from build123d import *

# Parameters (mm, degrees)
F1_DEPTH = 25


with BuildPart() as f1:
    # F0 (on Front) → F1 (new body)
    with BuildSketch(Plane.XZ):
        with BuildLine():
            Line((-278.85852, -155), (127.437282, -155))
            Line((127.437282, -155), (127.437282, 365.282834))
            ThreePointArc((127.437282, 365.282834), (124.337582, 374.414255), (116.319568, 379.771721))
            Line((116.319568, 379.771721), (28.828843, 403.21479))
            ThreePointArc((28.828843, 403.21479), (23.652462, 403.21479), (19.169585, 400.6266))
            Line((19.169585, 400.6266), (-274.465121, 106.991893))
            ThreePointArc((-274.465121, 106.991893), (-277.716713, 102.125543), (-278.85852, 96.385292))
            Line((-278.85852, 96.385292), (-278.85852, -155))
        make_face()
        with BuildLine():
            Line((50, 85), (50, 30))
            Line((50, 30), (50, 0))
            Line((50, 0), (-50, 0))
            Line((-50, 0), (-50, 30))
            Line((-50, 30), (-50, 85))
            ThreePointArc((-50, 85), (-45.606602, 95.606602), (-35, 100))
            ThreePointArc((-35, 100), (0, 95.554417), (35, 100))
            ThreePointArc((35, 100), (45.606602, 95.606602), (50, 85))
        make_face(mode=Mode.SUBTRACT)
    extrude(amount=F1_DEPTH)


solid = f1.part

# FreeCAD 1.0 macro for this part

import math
import FreeCAD as App
import Part
import Sketcher

V = App.Vector
Q = App.Units.Quantity

doc = App.newDocument("Part")
body = doc.addObject("PartDesign::Body", "Body")

sketch1 = body.newObject("Sketcher::SketchObject", "Sketch")
sketch1.AttachmentSupport = (doc.getObject("XZ_Plane"), [""])
sketch1.MapMode = "FlatFace"
sketch1.addGeometry(Part.LineSegment(V(-278.85852, -155, 0), V(127.437282, -155, 0)), False)
sketch1.addGeometry(Part.LineSegment(V(127.437282, -155, 0), V(127.437282, 365.282834, 0)), False)
sketch1.addGeometry(Part.ArcOfCircle(Part.Circle(V(112.437281, 365.282833, 0), V(0, 0, 1), 15.000001), math.radians(0.000003), math.radians(74.999997)), False)
sketch1.addGeometry(Part.LineSegment(V(116.319568, 379.771721, 0), V(28.828843, 403.21479, 0)), False)
sketch1.addGeometry(Part.ArcOfCircle(Part.Circle(V(26.240652, 393.555531, 0), V(0, 0, 1), 10), math.radians(75), math.radians(134.999996)), False)
sketch1.addGeometry(Part.LineSegment(V(19.169585, 400.6266, 0), V(-274.465121, 106.991893, 0)), False)
sketch1.addGeometry(Part.ArcOfCircle(Part.Circle(V(-263.858525, 96.385292, 0), V(0, 0, 1), 14.999995), math.radians(134.999989), math.radians(180.000002)), False)
sketch1.addGeometry(Part.LineSegment(V(-278.85852, 96.385292, 0), V(-278.85852, -155, 0)), False)
sketch1.addGeometry(Part.ArcOfCircle(Part.Circle(V(35.000001, 85.000001, 0), V(0, 0, 1), 14.999999), math.radians(-0.000004), math.radians(90.000004)), False)
sketch1.addGeometry(Part.LineSegment(V(50, 85, 0), V(50, 0, 0)), False)
sketch1.addGeometry(Part.LineSegment(V(50, 0, 0), V(-50, 0, 0)), False)
sketch1.addGeometry(Part.LineSegment(V(-50, 0, 0), V(-50, 85, 0)), False)
sketch1.addGeometry(Part.ArcOfCircle(Part.Circle(V(-35.000001, 85.000001, 0), V(0, 0, 1), 14.999999), math.radians(89.999996), math.radians(180.000004)), False)
sketch1.addGeometry(Part.ArcOfCircle(Part.Circle(V(0, 235.554413, 0), V(0, 0, 1), 139.999996), math.radians(-104.477513), math.radians(-75.522487)), False)
sketch1.addConstraint(Sketcher.Constraint("Coincident", 0, 2, 1, 1))
sketch1.addConstraint(Sketcher.Constraint("Tangent", 1, 2, 2, 1))
sketch1.addConstraint(Sketcher.Constraint("Tangent", 2, 2, 3, 1))
sketch1.addConstraint(Sketcher.Constraint("Tangent", 3, 2, 4, 1))
sketch1.addConstraint(Sketcher.Constraint("Tangent", 4, 2, 5, 1))
sketch1.addConstraint(Sketcher.Constraint("Tangent", 5, 2, 6, 1))
sketch1.addConstraint(Sketcher.Constraint("Tangent", 6, 2, 7, 1))
sketch1.addConstraint(Sketcher.Constraint("Coincident", 7, 2, 0, 1))
sketch1.addConstraint(Sketcher.Constraint("Tangent", 8, 1, 9, 1))
sketch1.addConstraint(Sketcher.Constraint("Coincident", 9, 2, 10, 1))
sketch1.addConstraint(Sketcher.Constraint("Coincident", 10, 2, 11, 1))
sketch1.addConstraint(Sketcher.Constraint("Tangent", 11, 2, 12, 2))
sketch1.addConstraint(Sketcher.Constraint("Coincident", 12, 1, 13, 1))
sketch1.addConstraint(Sketcher.Constraint("Coincident", 13, 2, 8, 2))
sketch1.addConstraint(Sketcher.Constraint("Horizontal", 0))
sketch1.addConstraint(Sketcher.Constraint("Vertical", 1))
sketch1.addConstraint(Sketcher.Constraint("Vertical", 7))
sketch1.addConstraint(Sketcher.Constraint("Vertical", 9))
sketch1.addConstraint(Sketcher.Constraint("Horizontal", 10))
sketch1.addConstraint(Sketcher.Constraint("Vertical", 11))
sketch1.addConstraint(Sketcher.Constraint("Equal", 2, 8))
sketch1.addConstraint(Sketcher.Constraint("Equal", 8, 12))
sketch1.addConstraint(Sketcher.Constraint("Symmetric", 9, 2, 10, 2, -1, 1))
sketch1.addConstraint(Sketcher.Constraint("Symmetric", 12, 1, 13, 2, -2))
sketch1.addConstraint(Sketcher.Constraint("Vertical", 8, 3, 13, 2))
sketch1.addConstraint(Sketcher.Constraint("Radius", 2, 15.000001))
sketch1.addConstraint(Sketcher.Constraint("Radius", 4, 10.0))
sketch1.addConstraint(Sketcher.Constraint("DistanceX", 10, 2, 10, 1, 100.0))
sketch1.addConstraint(Sketcher.Constraint("DistanceY", 9, 2, 9, 1, 85.0))
sketch1.addConstraint(Sketcher.Constraint("Angle", 3, Q("165 deg")))
sketch1.addConstraint(Sketcher.Constraint("Angle", 5, Q("-135 deg")))
sketch1.addConstraint(Sketcher.Constraint("DistanceY", 0, 2, -1, 1, 155.0))
sketch1.addConstraint(Sketcher.Constraint("DistanceX", 0, 1, 0, 2, 406.295802))
sketch1.addConstraint(Sketcher.Constraint("Radius", 6, 14.999995))
sketch1.addConstraint(Sketcher.Constraint("Radius", 13, 139.999996))
sketch1.addConstraint(Sketcher.Constraint("DistanceY", 7, 2, 7, 1, 251.385292))
sketch1.addConstraint(Sketcher.Constraint("DistanceY", -1, 1, 4, 2, 400.6266))
sketch1.addConstraint(Sketcher.Constraint("DistanceX", -1, 1, 2, 3, 112.437281))
pad1 = body.newObject("PartDesign::Pad", "Pad")
pad1.Profile = sketch1
pad1.Length = 25

doc.recompute()
